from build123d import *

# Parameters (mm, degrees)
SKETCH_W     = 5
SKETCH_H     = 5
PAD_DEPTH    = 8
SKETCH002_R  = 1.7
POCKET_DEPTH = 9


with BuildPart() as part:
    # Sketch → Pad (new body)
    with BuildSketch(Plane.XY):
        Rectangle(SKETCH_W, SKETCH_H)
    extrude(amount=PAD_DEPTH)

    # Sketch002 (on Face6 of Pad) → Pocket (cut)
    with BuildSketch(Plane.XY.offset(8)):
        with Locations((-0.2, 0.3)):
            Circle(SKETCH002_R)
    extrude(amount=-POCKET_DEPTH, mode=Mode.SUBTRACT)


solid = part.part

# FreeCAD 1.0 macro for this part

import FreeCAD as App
import Part
import Sketcher
from FreeCAD import Vector


def add_polygon(sketch, points):
    """Adds a closed chain of lines whose ends are joined by coincident constraints."""
    first, n = sketch.GeometryCount, len(points)
    for a, b in zip(points, points[1:] + points[:1]):
        sketch.addGeometry(Part.LineSegment(App.Vector(*a, 0), App.Vector(*b, 0)), False)
    for i in range(n):
        sketch.addConstraint(Sketcher.Constraint("Coincident", first + i, 2, first + (i + 1) % n, 1))

doc = App.newDocument("Part")
body = doc.addObject("PartDesign::Body", "Body")

sketch1 = body.newObject("Sketcher::SketchObject", "Sketch")
sketch1.AttachmentSupport = (doc.getObject("XY_Plane"), [""])
sketch1.MapMode = "FlatFace"
add_polygon(sketch1, [(-2, 2), (-2, -2), (2, -2), (2, 2)])
sketch1.addConstraint(Sketcher.Constraint("Vertical", 0))
sketch1.addConstraint(Sketcher.Constraint("Horizontal", 1))
sketch1.addConstraint(Sketcher.Constraint("Vertical", 2))
sketch1.addConstraint(Sketcher.Constraint("Horizontal", 3))
sketch1.addConstraint(Sketcher.Constraint("Symmetric", 0, 2, 2, 2, -1, 1))
sketch1.addConstraint(Sketcher.Constraint("Equal", 3, 0))
sketch1.addConstraint(Sketcher.Constraint("DistanceX", 1, 1, 1, 2, 5.0))
pad1 = body.newObject("PartDesign::Pad", "Pad")
pad1.Profile = sketch1
pad1.Length = 8

sketch2 = body.newObject("Sketcher::SketchObject", "Sketch001")
sketch2.AttachmentSupport = (doc.getObject("XY_Plane"), [""])
sketch2.MapMode = "FlatFace"
sketch2.AttachmentOffset = App.Placement(Vector(0, 0, 8), App.Rotation())
sketch2.addGeometry(Part.Circle(Vector(-0.2, 0.3, 0), Vector(0, 0, 1), 1.7), False)
sketch2.addConstraint(Sketcher.Constraint("Diameter", 0, 3.4))
sketch2.addConstraint(Sketcher.Constraint("DistanceX", 0, 3, -1, 1, 0.2))
sketch2.addConstraint(Sketcher.Constraint("DistanceY", -1, 1, 0, 3, 0.3))
pocket1 = body.newObject("PartDesign::Pocket", "Pocket")
pocket1.Profile = sketch2
pocket1.Length = 9

doc.recompute()
